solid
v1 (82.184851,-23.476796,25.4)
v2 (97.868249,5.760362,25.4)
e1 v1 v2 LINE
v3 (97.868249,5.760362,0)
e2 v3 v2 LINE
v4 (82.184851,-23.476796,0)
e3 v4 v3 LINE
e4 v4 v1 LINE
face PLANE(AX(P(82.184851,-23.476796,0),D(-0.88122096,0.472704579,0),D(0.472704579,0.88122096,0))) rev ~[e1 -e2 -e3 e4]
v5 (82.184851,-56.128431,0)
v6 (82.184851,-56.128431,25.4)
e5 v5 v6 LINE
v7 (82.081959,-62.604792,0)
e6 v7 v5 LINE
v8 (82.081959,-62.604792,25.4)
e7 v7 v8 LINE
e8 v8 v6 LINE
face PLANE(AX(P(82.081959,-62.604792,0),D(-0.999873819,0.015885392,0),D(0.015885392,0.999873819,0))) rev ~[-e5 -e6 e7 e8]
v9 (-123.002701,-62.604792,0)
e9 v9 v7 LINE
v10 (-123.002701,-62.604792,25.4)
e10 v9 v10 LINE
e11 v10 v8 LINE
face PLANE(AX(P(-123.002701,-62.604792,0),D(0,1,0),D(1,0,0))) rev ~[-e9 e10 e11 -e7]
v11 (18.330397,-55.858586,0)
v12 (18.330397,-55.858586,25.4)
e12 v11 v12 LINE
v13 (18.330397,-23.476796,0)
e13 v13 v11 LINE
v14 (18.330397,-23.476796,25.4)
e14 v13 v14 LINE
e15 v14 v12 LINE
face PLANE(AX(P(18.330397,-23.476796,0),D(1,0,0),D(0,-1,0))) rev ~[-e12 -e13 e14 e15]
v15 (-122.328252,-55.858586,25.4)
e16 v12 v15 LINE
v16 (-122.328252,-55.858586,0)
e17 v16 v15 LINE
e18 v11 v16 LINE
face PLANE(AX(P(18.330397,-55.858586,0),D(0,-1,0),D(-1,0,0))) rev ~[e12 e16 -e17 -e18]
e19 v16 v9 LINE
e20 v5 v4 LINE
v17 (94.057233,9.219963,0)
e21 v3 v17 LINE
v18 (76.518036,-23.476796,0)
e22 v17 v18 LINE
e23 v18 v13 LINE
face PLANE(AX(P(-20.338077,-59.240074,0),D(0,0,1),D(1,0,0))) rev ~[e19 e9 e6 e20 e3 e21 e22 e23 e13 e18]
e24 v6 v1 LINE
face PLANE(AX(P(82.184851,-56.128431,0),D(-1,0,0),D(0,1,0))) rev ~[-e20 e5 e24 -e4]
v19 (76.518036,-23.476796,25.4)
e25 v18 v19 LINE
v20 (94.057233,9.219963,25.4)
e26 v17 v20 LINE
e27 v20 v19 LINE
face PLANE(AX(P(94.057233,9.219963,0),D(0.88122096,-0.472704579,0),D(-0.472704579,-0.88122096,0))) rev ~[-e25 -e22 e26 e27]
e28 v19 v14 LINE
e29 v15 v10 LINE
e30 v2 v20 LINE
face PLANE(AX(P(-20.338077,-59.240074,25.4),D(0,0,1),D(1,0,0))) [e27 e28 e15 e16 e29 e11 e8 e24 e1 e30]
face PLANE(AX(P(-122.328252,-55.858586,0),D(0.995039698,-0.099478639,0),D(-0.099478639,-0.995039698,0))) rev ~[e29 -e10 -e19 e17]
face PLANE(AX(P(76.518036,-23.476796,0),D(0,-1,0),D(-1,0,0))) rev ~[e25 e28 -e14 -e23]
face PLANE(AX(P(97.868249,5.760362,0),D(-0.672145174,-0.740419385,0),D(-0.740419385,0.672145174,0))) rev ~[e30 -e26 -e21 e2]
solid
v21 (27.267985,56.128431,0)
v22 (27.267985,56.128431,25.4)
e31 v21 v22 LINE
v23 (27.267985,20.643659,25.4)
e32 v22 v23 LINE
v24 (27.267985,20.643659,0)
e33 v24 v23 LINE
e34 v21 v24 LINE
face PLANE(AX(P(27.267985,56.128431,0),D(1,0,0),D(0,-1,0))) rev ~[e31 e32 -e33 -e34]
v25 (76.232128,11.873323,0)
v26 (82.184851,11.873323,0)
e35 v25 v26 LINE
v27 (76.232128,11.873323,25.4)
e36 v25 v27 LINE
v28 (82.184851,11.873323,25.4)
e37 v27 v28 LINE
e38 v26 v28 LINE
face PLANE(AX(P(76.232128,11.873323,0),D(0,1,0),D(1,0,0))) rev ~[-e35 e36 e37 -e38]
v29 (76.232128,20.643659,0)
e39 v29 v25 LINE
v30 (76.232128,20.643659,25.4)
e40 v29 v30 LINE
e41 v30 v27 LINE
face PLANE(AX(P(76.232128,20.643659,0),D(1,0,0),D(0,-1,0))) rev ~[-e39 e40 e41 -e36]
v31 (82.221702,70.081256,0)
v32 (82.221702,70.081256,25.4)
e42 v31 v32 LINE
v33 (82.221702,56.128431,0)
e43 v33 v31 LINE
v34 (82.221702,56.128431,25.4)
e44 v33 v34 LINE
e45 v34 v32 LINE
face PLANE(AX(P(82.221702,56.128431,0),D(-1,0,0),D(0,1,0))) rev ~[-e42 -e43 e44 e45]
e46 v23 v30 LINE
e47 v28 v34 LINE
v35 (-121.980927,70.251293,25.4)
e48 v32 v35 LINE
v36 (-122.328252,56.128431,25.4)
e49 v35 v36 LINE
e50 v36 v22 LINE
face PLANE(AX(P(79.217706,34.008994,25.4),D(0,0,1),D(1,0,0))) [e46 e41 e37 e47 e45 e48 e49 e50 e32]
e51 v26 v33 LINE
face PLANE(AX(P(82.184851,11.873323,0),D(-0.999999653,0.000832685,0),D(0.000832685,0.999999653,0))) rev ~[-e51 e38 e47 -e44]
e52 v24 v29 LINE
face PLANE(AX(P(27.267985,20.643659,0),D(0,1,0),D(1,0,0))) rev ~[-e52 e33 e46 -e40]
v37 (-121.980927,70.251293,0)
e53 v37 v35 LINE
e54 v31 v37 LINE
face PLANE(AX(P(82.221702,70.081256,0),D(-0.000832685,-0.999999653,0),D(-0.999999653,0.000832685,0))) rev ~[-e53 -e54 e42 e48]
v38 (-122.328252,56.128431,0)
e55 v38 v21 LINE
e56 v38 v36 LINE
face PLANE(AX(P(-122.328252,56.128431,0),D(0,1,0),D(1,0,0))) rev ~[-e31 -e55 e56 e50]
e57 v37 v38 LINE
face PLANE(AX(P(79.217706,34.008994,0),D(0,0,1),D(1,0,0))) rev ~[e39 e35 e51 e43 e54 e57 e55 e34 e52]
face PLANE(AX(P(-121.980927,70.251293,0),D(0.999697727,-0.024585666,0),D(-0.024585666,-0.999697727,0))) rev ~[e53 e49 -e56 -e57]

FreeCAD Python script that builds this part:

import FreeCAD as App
import Part
import Sketcher
Q = App.Units.Quantity

doc = App.newDocument("Part")
params = doc.addObject("Spreadsheet::Sheet", "Params")
for row, (alias, value) in enumerate([
    ("pad1_length", "1 in"),
    ("pad2_length", "1 in"),
], start=1):
    params.set(f"A{row}", alias)
    params.set(f"B{row}", "=" + value)
    params.setAlias(f"B{row}", alias)

body = doc.addObject("PartDesign::Body", "Body")

# Sketch on XY plane
sketch1 = body.newObject("Sketcher::SketchObject", "Sketch")
sketch1.AttachmentSupport = (doc.getObject("XY_Plane"), [""])
sketch1.MapMode = "FlatFace"
sketch1.addGeometry([
    Part.LineSegment(App.Vector(76, 21, 0), App.Vector(76, 12, 0)),  # 0
    Part.LineSegment(App.Vector(76, 12, 0), App.Vector(82, 12, 0)),  # 1
    Part.LineSegment(App.Vector(82, 12, 0), App.Vector(82, 56, 0)),  # 2
    Part.LineSegment(App.Vector(82, 56, 0), App.Vector(82, 70, 0)),  # 3
    Part.LineSegment(App.Vector(82, 70, 0), App.Vector(-122, 70, 0)),  # 4
    Part.LineSegment(App.Vector(-122, 70, 0), App.Vector(-122, 56, 0)),  # 5
    Part.LineSegment(App.Vector(-122, 56, 0), App.Vector(27, 56, 0)),  # 6
    Part.LineSegment(App.Vector(27, 56, 0), App.Vector(27, 21, 0)),  # 7
    Part.LineSegment(App.Vector(27, 21, 0), App.Vector(76, 21, 0)),  # 8
], False)
sketch1.addConstraint([
    Sketcher.Constraint("Coincident", 0, 2, 1, 1),
    Sketcher.Constraint("Coincident", 1, 2, 2, 1),
    Sketcher.Constraint("Coincident", 2, 2, 3, 1),
    Sketcher.Constraint("Coincident", 3, 2, 4, 1),
    Sketcher.Constraint("Coincident", 4, 2, 5, 1),
    Sketcher.Constraint("Coincident", 5, 2, 6, 1),
    Sketcher.Constraint("Coincident", 6, 2, 7, 1),
    Sketcher.Constraint("Coincident", 7, 2, 8, 1),
    Sketcher.Constraint("Coincident", 8, 2, 0, 1),
    Sketcher.Constraint("Vertical", 0),
    Sketcher.Constraint("Horizontal", 1),
    Sketcher.Constraint("Vertical", 3),
    Sketcher.Constraint("Horizontal", 6),
    Sketcher.Constraint("Vertical", 7),
    Sketcher.Constraint("Horizontal", 8),
    Sketcher.Constraint("Perpendicular", 2, 4),
    Sketcher.Constraint("Horizontal", 2, 2, 5, 2),
    Sketcher.Constraint("Distance", 4, 204.202699),
    Sketcher.Constraint("DistanceX", -1, 1, 2, 2, 82.221702),
    Sketcher.Constraint("Distance", 5, 14.127132),
    Sketcher.Constraint("DistanceX", 1, 1, 1, 2, 5.952723),
    Sketcher.Constraint("DistanceX", 6, 1, 6, 2, 149.596237),
    Sketcher.Constraint("DistanceX", 8, 1, 8, 2, 48.964143),
    Sketcher.Constraint("DistanceY", 0, 2, 0, 1, 8.770336),
    Sketcher.Constraint("DistanceY", 3, 1, 3, 2, 13.952825),
    Sketcher.Constraint("DistanceY", 7, 2, 7, 1, 35.484772),
    Sketcher.Constraint("DistanceY", -1, 1, 2, 2, 56.128431),
])
pad1 = body.newObject("PartDesign::Pad", "Pad")
pad1.Profile = sketch1
pad1.setExpression("Length", "Params.pad1_length")
body2 = doc.addObject("PartDesign::Body", "Body001")

# Sketch on XY plane
sketch2 = body2.newObject("Sketcher::SketchObject", "Sketch001")
sketch2.AttachmentSupport = (doc.getObject("XY_Plane001"), [""])
sketch2.MapMode = "FlatFace"
sketch2.addGeometry([
    Part.LineSegment(App.Vector(-122, -56, 0), App.Vector(-123, -63, 0)),  # 0
    Part.LineSegment(App.Vector(-123, -63, 0), App.Vector(82, -63, 0)),  # 1
    Part.LineSegment(App.Vector(82, -63, 0), App.Vector(82, -56, 0)),  # 2
    Part.LineSegment(App.Vector(82, -56, 0), App.Vector(82, -23, 0)),  # 3
    Part.LineSegment(App.Vector(82, -23, 0), App.Vector(98, 6, 0)),  # 4
    Part.LineSegment(App.Vector(98, 6, 0), App.Vector(94, 9, 0)),  # 5
    Part.LineSegment(App.Vector(94, 9, 0), App.Vector(77, -23, 0)),  # 6
    Part.LineSegment(App.Vector(77, -23, 0), App.Vector(18, -23, 0)),  # 7
    Part.LineSegment(App.Vector(18, -23, 0), App.Vector(18, -56, 0)),  # 8
    Part.LineSegment(App.Vector(18, -56, 0), App.Vector(-122, -56, 0)),  # 9
], False)
sketch2.addConstraint([
    Sketcher.Constraint("Coincident", 0, 2, 1, 1),
    Sketcher.Constraint("Coincident", 1, 2, 2, 1),
    Sketcher.Constraint("Coincident", 2, 2, 3, 1),
    Sketcher.Constraint("Coincident", 3, 2, 4, 1),
    Sketcher.Constraint("Coincident", 4, 2, 5, 1),
    Sketcher.Constraint("Coincident", 5, 2, 6, 1),
    Sketcher.Constraint("Coincident", 6, 2, 7, 1),
    Sketcher.Constraint("Coincident", 7, 2, 8, 1),
    Sketcher.Constraint("Coincident", 8, 2, 9, 1),
    Sketcher.Constraint("Coincident", 9, 2, 0, 1),
    Sketcher.Constraint("Horizontal", 1),
    Sketcher.Constraint("Vertical", 3),
    Sketcher.Constraint("Horizontal", 7),
    Sketcher.Constraint("Vertical", 8),
    Sketcher.Constraint("Horizontal", 9),
    Sketcher.Constraint("Parallel", 4, 6),
    Sketcher.Constraint("Horizontal", 3, 2, 6, 2),
    Sketcher.Constraint("Angle", 4, Q("61.79 deg")),
    Sketcher.Constraint("DistanceX", 1, 1, 1, 2, 205.084659),
    Sketcher.Constraint("DistanceX", 7, 2, 7, 1, 58.187639),
    Sketcher.Constraint("DistanceX", 9, 2, 9, 1, 140.658649),
    Sketcher.Constraint("DistanceY", 8, 2, 8, 1, 32.38179),
    Sketcher.Constraint("DistanceX", 0, 2, -1, 1, 123.002701),
    Sketcher.Constraint("DistanceY", 4, 2, 5, 2, 3.459601),
    Sketcher.Constraint("Distance", 2, 6.477179),
    Sketcher.Constraint("Distance", 4, 33.178011),
    Sketcher.Constraint("DistanceY", 3, 1, 3, 2, 32.651635),
    Sketcher.Constraint("DistanceX", -1, 1, 2, 2, 82.184851),
    Sketcher.Constraint("DistanceY", 2, 2, -1, 1, 56.128431),
    Sketcher.Constraint("DistanceX", 9, 2, -1, 1, 122.328252),
])
pad2 = body2.newObject("PartDesign::Pad", "Pad001")
pad2.Profile = sketch2
pad2.setExpression("Length", "Params.pad2_length")

doc.recompute()
